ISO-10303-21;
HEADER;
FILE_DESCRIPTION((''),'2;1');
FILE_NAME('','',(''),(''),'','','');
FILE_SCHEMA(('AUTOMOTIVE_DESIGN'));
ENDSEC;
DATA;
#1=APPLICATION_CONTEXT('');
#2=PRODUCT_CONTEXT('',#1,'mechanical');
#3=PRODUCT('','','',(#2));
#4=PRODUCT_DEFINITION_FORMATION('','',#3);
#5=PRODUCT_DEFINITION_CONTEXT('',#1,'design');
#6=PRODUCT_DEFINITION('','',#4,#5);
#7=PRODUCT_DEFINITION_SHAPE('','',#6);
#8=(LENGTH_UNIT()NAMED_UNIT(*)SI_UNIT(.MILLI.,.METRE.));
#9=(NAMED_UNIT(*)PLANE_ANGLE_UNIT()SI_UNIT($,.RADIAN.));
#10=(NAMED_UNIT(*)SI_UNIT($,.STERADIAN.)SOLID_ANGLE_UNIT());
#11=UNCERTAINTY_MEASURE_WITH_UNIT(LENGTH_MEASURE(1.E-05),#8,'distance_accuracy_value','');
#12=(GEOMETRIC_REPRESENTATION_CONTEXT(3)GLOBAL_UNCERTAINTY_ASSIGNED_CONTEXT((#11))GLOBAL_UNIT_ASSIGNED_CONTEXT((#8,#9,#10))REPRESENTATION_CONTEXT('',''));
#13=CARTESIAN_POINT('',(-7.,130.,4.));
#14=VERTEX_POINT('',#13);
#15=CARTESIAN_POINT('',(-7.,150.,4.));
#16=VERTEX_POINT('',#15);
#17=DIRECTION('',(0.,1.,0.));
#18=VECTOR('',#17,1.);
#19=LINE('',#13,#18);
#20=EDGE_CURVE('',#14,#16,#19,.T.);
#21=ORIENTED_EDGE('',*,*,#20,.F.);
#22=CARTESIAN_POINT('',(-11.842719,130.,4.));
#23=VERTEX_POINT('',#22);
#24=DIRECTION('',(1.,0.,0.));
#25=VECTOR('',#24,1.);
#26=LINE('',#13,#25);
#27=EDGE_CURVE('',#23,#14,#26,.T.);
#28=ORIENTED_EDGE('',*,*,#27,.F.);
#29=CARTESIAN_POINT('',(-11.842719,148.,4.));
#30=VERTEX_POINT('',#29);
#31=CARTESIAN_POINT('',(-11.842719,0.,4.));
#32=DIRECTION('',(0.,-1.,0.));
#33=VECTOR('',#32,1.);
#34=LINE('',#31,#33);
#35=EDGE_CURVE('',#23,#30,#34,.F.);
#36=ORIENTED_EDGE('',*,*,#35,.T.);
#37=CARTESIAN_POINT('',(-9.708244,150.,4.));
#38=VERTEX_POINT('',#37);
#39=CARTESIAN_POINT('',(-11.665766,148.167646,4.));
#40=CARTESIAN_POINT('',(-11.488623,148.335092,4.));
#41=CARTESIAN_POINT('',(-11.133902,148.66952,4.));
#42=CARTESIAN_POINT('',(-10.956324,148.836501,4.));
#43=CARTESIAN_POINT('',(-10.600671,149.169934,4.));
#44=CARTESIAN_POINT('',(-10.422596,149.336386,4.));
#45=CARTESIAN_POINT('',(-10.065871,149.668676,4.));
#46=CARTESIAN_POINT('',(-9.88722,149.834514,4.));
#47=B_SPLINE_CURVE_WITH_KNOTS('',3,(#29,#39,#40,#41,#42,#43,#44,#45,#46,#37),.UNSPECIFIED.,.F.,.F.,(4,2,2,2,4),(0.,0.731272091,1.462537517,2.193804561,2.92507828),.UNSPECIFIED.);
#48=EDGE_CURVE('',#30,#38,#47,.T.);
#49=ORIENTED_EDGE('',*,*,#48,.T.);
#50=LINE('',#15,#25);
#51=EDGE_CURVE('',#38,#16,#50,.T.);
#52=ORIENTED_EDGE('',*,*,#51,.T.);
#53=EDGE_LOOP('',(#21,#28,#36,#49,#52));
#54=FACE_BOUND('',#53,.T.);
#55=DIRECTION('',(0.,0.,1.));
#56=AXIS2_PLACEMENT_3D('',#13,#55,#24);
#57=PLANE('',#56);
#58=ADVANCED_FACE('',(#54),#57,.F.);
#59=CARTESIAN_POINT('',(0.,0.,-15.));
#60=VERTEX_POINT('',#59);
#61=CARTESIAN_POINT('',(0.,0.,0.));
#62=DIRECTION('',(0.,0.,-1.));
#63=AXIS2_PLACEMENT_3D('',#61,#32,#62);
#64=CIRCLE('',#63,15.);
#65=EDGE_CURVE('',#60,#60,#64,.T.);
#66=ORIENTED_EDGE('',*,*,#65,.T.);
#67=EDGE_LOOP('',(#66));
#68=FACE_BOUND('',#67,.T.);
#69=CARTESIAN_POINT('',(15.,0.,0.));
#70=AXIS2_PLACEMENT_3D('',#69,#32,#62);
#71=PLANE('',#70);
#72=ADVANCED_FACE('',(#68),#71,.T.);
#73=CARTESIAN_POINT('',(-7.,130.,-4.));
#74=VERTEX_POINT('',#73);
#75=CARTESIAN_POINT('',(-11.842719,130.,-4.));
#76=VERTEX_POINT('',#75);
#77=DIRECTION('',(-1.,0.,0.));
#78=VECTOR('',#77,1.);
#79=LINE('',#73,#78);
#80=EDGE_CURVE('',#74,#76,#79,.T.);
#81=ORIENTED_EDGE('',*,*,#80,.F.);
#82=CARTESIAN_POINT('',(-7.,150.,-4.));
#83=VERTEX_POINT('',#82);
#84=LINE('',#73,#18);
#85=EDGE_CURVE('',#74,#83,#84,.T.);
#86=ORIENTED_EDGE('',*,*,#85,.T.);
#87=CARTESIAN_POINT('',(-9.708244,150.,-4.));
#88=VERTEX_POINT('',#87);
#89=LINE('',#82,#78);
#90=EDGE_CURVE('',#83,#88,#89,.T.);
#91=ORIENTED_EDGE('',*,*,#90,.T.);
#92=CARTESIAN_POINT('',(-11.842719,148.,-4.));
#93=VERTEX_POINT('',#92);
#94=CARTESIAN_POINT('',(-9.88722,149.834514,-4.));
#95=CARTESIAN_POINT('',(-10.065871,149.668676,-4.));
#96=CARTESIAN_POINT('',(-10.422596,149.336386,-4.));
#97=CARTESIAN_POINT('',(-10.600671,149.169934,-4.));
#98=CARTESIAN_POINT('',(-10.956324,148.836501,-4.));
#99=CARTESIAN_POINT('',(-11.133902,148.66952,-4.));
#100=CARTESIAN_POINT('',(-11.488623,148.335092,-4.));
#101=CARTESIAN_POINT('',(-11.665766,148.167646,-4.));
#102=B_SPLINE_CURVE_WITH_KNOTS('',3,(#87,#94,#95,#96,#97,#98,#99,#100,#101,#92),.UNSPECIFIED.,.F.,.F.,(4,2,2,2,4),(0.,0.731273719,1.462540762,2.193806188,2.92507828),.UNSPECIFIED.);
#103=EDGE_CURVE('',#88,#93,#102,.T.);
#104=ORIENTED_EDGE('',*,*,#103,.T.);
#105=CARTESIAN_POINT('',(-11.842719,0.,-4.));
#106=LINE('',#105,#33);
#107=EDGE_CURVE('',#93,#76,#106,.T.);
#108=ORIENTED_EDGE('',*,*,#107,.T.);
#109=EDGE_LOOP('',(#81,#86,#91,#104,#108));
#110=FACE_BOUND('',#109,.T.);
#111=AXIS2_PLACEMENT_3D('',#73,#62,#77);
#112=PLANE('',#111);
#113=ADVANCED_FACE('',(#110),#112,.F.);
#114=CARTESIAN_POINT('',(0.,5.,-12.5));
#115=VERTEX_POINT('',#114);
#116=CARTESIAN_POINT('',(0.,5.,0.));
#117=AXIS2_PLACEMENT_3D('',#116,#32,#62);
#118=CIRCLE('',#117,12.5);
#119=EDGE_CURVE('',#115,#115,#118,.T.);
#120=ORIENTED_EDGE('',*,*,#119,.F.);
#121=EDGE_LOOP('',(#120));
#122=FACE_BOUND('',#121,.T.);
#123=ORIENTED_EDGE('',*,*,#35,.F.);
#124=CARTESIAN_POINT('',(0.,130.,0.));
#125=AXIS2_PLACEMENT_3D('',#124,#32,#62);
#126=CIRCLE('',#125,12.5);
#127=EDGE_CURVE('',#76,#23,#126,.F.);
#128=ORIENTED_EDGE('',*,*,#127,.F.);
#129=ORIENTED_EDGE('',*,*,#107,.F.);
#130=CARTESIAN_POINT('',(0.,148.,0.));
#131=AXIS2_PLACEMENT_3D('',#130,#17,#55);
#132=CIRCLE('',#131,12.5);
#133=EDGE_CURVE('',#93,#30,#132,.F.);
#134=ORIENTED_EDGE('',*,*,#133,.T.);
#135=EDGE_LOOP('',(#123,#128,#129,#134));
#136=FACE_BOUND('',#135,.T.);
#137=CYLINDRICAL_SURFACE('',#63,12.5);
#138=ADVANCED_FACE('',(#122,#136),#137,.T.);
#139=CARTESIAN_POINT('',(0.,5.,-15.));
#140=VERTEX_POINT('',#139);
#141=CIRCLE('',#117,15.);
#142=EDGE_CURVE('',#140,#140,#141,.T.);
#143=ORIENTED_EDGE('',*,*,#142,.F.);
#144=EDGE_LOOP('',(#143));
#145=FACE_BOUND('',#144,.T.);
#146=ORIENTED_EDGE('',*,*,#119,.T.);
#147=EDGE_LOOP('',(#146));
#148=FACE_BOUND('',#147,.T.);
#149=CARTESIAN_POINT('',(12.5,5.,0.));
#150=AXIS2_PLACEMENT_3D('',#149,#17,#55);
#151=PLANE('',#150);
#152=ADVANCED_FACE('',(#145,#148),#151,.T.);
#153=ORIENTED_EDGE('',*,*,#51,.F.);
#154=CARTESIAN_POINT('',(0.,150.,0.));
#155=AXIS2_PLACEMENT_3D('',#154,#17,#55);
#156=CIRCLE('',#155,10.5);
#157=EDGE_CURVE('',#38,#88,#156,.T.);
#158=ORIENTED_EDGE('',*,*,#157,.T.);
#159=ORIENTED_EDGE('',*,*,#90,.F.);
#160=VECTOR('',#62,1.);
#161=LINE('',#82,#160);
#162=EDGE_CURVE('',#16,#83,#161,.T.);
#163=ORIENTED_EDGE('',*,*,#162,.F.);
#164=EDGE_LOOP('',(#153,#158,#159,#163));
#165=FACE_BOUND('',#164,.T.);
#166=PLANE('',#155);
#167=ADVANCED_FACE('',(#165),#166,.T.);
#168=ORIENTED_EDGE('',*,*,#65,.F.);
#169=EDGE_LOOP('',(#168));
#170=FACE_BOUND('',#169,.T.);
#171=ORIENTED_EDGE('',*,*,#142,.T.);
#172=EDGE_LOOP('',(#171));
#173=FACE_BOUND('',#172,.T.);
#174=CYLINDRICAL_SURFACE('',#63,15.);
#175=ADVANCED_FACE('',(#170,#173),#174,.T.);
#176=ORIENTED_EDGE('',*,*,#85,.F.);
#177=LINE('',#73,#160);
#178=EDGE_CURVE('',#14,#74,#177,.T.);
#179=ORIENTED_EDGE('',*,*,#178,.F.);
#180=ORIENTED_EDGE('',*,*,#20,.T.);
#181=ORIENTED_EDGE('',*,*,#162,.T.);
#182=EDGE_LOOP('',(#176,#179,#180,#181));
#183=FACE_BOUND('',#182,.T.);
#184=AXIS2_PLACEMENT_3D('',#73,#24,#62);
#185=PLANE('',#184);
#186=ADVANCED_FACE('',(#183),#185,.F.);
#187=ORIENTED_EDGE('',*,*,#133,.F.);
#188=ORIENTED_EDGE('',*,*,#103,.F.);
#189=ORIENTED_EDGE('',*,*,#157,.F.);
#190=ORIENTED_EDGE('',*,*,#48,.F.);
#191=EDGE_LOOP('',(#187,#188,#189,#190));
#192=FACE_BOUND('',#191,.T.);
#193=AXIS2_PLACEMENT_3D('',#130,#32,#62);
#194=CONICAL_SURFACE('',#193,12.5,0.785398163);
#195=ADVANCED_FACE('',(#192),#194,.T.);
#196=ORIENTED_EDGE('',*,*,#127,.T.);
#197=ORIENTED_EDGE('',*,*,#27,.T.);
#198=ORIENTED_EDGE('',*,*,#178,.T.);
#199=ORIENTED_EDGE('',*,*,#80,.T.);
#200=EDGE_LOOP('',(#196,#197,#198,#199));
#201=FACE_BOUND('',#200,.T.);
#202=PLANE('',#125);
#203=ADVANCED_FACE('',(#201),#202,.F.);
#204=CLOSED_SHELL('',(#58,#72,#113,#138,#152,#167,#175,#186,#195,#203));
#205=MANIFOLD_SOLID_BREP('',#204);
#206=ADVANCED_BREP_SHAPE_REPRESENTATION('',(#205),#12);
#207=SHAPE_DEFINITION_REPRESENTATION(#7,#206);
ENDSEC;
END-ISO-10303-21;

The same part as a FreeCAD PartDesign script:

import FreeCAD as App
import Part
import Sketcher

V = App.Vector


def edges_at(feature, points):
    """Names of the edges that pass closest to the given points."""
    edges = feature.Shape.Edges
    near = lambda p: min(range(len(edges)), key=lambda i: edges[i].distToShape(Part.Vertex(*p))[0])
    return sorted({f"Edge{near(p) + 1}" for p in points})


def add_polygon(sketch, points):
    """Adds a closed chain of lines whose ends are joined by coincident constraints."""
    first, n = sketch.GeometryCount, len(points)
    for a, b in zip(points, points[1:] + points[:1]):
        sketch.addGeometry(Part.LineSegment(App.Vector(*a, 0), App.Vector(*b, 0)), False)
    for i in range(n):
        sketch.addConstraint(Sketcher.Constraint("Coincident", first + i, 2, first + (i + 1) % n, 1))

doc = App.newDocument("Part")
body = doc.addObject("PartDesign::Body", "Body")

sketch1 = doc.addObject("Sketcher::SketchObject", "Sketch")
body.addObject(sketch1)
sketch1.AttachmentSupport = (doc.XY_Plane, [""])
sketch1.MapMode = "FlatFace"
add_polygon(sketch1, [(12.5, 150), (0, 150), (0, 0), (15, 0), (15, 5), (12.5, 5)])
sketch1.addConstraint([
    Sketcher.Constraint("Horizontal", 0),
    Sketcher.Constraint("Vertical", 1),
    Sketcher.Constraint("Horizontal", 2),
    Sketcher.Constraint("Vertical", 3),
    Sketcher.Constraint("Horizontal", 4),
    Sketcher.Constraint("Vertical", 5),
    Sketcher.Constraint("Coincident", 1, 2, -1, 1),
    Sketcher.Constraint("DistanceX", 2, 1, 2, 2, 15.0),
    Sketcher.Constraint("DistanceY", 1, 2, 1, 1, 150.0),
    Sketcher.Constraint("DistanceY", 3, 1, 3, 2, 5.0),
    Sketcher.Constraint("DistanceX", 0, 2, 0, 1, 12.5),
])
revolution = doc.addObject("PartDesign::Revolution", "Revolution")
body.addObject(revolution)
revolution.Profile = sketch1
revolution.ReferenceAxis = (sketch1, ["V_Axis"])
revolution.Angle = 360

sketch2 = doc.addObject("Sketcher::SketchObject", "Sketch001")
body.addObject(sketch2)
sketch2.AttachmentSupport = (doc.XZ_Plane, [""])
sketch2.MapMode = "FlatFace"
sketch2.AttachmentOffset = App.Placement(V(0, 0, -150), App.Rotation())
add_polygon(sketch2, [(-15, -4), (-15, 4), (-7, 4), (-7, -4)])
sketch2.addConstraint([
    Sketcher.Constraint("Vertical", 0),
    Sketcher.Constraint("Horizontal", 1),
    Sketcher.Constraint("Vertical", 2),
    Sketcher.Constraint("Horizontal", 3),
    Sketcher.Constraint("Equal", 3, 0),
    Sketcher.Constraint("DistanceX", 1, 1, 1, 2, 8.0),
    Sketcher.Constraint("DistanceX", 0, 2, -1, 1, 15.0),
    Sketcher.Constraint("DistanceY", -1, 1, 0, 2, 4.0),
])
pocket1 = doc.addObject("PartDesign::Pocket", "Pocket")
body.addObject(pocket1)
pocket1.Profile = sketch2
pocket1.Length = 20
pocket1.Reversed = True
doc.recompute()

chamfer = doc.addObject("PartDesign::Chamfer", "Chamfer")
body.addObject(chamfer)
chamfer.Base = (pocket1, edges_at(pocket1, [(2.027, 150, -12.335)]))
chamfer.Size = 2

doc.recompute()
